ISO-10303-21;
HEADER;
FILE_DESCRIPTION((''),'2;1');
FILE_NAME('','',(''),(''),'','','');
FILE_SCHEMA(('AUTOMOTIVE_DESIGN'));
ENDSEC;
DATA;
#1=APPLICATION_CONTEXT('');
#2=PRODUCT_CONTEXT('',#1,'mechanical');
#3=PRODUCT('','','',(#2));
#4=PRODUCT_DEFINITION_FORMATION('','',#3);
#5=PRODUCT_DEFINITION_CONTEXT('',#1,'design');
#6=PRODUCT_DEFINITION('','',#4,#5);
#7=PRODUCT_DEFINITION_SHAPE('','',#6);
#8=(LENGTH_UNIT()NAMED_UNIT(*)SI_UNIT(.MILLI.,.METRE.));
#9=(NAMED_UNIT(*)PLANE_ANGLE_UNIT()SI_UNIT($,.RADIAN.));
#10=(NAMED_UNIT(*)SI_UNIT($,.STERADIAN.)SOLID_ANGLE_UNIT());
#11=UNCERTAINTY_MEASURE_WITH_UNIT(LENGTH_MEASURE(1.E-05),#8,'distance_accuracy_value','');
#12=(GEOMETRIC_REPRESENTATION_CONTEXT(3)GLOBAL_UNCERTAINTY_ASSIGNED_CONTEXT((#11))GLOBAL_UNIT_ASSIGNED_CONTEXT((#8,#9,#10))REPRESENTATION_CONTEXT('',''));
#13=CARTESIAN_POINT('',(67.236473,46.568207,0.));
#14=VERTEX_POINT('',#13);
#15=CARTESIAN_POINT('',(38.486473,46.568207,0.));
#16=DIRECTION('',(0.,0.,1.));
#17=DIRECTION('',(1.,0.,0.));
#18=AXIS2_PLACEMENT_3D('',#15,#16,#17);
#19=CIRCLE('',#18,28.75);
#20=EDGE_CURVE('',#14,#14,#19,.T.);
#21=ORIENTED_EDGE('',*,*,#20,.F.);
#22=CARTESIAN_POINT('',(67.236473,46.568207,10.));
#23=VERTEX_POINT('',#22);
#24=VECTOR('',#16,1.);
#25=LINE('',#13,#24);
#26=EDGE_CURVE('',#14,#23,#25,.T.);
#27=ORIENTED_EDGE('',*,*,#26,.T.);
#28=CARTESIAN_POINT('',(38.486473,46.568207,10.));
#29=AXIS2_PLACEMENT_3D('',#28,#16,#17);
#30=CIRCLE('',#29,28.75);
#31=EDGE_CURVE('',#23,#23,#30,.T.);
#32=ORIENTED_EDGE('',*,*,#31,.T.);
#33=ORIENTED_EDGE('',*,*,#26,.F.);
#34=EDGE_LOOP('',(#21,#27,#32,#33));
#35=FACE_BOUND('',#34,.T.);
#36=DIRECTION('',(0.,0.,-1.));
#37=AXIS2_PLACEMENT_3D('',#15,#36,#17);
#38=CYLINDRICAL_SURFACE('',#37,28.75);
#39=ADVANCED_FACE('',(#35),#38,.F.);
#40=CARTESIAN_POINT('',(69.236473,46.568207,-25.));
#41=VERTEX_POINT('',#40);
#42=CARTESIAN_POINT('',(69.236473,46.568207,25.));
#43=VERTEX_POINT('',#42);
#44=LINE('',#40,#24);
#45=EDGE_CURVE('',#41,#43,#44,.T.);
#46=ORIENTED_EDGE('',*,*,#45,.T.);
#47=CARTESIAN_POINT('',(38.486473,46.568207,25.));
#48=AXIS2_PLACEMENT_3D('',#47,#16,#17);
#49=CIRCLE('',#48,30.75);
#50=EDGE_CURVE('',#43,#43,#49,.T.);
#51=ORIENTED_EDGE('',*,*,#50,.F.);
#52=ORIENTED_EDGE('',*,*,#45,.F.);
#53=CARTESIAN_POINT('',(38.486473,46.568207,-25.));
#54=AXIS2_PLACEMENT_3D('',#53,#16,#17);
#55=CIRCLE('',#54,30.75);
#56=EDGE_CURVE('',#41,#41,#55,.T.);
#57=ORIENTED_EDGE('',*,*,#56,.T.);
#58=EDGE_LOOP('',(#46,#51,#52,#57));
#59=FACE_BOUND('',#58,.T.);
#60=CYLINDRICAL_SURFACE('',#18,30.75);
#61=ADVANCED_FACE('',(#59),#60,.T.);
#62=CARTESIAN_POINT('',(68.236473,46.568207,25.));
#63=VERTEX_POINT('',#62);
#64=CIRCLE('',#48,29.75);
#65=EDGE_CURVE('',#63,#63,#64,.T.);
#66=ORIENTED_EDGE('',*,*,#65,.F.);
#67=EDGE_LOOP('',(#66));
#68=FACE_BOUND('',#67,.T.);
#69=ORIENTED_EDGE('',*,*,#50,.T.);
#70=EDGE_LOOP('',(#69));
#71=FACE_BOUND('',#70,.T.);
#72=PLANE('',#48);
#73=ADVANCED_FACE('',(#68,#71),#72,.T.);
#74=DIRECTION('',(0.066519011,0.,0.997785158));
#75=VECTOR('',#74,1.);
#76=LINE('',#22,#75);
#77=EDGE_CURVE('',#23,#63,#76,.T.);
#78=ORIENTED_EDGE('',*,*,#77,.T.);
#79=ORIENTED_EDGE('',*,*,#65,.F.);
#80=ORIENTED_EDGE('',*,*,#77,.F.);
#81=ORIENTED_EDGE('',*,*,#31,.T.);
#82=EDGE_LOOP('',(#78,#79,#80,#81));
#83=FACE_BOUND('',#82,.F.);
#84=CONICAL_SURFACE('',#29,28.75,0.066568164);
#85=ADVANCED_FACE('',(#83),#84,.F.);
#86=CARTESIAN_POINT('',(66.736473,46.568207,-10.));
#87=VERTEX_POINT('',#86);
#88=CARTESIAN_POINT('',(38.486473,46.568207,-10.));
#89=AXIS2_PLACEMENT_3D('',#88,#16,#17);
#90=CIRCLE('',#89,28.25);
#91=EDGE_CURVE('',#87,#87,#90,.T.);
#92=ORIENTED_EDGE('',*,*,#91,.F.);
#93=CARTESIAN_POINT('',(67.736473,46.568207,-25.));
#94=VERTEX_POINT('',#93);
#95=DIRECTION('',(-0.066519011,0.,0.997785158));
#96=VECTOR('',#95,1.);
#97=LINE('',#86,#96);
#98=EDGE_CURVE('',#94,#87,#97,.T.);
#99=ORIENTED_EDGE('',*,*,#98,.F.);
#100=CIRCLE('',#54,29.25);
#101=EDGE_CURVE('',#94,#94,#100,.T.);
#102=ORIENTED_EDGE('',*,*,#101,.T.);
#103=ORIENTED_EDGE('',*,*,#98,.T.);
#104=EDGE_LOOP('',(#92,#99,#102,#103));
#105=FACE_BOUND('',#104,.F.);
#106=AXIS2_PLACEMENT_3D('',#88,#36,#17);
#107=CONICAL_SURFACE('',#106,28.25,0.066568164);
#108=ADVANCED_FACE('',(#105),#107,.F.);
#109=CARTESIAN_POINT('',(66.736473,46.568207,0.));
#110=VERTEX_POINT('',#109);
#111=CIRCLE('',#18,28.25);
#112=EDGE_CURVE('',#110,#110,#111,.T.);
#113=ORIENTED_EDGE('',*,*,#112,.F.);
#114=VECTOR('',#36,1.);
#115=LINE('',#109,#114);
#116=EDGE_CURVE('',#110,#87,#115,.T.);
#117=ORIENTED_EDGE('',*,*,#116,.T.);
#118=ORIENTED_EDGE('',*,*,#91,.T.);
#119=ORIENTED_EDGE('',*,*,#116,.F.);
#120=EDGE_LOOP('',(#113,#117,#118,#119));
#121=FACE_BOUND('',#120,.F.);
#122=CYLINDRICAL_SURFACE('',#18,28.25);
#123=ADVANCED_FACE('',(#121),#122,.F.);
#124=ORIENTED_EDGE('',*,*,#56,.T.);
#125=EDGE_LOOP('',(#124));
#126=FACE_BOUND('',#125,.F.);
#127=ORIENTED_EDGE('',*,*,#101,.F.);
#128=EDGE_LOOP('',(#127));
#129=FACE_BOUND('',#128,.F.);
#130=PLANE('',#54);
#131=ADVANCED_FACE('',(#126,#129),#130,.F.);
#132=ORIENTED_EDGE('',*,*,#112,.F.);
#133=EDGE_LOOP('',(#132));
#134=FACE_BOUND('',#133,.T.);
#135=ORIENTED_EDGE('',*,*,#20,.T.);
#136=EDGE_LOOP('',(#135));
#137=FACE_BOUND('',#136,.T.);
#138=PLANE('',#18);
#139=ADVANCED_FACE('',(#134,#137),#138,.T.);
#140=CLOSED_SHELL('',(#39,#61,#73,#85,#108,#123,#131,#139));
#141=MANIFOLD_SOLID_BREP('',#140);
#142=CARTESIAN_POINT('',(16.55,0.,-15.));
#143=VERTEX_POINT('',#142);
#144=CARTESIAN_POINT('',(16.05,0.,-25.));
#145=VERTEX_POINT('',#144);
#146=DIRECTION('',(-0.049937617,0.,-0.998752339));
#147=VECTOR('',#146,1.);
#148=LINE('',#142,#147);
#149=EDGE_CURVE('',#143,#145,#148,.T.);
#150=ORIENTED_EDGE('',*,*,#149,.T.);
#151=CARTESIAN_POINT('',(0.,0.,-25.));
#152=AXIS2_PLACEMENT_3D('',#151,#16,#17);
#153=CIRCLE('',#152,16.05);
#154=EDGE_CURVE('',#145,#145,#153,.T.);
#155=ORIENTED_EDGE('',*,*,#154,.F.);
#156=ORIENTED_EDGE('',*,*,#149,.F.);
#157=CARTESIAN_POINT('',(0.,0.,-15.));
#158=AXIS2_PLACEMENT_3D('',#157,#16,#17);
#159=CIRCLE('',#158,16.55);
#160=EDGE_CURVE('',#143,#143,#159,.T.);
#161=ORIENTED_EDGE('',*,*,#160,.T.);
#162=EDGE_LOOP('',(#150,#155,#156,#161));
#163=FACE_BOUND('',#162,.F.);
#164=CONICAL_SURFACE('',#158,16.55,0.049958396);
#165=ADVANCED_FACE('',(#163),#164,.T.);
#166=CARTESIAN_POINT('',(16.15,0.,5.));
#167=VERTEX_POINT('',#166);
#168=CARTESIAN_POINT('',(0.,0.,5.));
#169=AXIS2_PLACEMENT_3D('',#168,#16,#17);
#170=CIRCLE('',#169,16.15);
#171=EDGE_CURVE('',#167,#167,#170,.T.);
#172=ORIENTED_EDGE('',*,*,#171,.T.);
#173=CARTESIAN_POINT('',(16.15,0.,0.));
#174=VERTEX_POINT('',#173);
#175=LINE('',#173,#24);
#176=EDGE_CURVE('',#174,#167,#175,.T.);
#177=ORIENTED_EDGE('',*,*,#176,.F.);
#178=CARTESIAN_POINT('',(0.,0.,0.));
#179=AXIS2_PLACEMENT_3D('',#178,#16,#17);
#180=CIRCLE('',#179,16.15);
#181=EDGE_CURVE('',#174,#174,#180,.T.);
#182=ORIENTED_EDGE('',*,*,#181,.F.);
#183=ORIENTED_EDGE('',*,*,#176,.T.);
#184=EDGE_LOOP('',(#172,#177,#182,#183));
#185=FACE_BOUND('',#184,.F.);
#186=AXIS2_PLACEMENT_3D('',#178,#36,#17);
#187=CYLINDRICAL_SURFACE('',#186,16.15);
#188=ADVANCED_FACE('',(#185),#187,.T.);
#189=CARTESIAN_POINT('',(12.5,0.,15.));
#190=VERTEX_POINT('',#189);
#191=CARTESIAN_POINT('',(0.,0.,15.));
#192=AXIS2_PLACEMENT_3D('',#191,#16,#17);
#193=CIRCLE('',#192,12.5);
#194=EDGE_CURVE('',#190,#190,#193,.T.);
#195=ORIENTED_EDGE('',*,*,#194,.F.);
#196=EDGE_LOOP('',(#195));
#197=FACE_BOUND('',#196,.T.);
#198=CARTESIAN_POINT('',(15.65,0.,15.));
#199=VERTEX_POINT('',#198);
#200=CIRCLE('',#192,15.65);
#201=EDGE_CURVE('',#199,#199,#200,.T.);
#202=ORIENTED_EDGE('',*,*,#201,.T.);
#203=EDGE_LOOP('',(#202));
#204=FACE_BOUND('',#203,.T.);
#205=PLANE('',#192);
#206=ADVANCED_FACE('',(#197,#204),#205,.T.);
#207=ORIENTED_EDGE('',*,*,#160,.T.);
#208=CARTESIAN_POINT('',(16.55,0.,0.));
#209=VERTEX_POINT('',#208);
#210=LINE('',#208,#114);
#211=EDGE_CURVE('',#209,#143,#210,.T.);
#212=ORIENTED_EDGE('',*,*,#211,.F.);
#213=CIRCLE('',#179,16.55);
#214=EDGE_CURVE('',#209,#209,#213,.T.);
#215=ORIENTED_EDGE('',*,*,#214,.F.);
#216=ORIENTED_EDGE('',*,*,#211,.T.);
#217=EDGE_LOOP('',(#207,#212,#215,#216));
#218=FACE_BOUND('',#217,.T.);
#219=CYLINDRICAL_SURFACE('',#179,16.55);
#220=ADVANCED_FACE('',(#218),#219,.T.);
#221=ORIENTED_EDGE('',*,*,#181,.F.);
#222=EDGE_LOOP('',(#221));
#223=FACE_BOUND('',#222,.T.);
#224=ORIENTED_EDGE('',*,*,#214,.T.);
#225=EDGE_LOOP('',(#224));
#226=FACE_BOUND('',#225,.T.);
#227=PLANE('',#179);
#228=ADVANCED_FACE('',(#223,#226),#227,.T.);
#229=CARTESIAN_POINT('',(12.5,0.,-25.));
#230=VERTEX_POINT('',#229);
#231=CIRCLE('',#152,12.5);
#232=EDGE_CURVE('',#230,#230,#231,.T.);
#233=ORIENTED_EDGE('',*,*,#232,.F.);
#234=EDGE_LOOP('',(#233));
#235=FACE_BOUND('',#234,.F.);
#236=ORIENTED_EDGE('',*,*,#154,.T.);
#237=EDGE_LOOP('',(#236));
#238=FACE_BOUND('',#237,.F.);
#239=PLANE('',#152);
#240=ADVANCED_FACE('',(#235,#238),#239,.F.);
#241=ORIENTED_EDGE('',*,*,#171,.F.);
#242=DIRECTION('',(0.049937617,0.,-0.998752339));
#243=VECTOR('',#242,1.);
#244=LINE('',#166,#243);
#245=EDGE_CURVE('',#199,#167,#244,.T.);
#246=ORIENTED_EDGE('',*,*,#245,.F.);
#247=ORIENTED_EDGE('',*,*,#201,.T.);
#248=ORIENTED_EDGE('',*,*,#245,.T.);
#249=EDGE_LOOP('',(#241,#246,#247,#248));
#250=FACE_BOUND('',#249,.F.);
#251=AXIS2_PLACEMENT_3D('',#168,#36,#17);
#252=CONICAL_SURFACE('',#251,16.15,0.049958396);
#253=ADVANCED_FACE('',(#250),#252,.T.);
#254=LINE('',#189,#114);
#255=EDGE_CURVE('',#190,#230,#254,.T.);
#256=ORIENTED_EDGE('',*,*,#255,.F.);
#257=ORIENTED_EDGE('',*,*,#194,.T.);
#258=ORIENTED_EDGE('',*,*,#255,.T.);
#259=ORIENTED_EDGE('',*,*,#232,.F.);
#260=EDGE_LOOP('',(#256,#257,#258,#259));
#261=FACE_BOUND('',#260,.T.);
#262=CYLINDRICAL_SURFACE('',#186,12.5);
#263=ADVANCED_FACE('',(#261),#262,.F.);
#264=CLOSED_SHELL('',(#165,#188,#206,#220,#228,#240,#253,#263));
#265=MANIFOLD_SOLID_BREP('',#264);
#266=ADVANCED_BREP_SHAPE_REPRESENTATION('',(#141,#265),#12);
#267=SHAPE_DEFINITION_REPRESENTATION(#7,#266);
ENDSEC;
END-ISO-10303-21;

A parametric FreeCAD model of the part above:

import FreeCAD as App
import Part
import Sketcher


def edges_at(feature, points):
    """Names of the edges that pass closest to the given points."""
    edges = feature.Shape.Edges
    near = lambda p: min(range(len(edges)), key=lambda i: edges[i].distToShape(Part.Vertex(*p))[0])
    return sorted({f"Edge{near(p) + 1}" for p in points})

doc = App.newDocument("Part")
body = doc.addObject("PartDesign::Body", "Body")

# Sketch on XY plane
sketch1 = body.newObject("Sketcher::SketchObject", "Sketch")
sketch1.AttachmentSupport = (doc.getObject("XY_Plane"), [""])
sketch1.MapMode = "FlatFace"
sketch1.addGeometry([
    Part.Circle(App.Vector(0, 0, 0), App.Vector(0, 0, 1), 16.15),
    Part.Circle(App.Vector(0, 0, 0), App.Vector(0, 0, 1), 12.5),
], False)
sketch1.addConstraint([
    Sketcher.Constraint("Coincident", 0, 3, -1, 1),
    Sketcher.Constraint("Coincident", 1, 3, -1, 1),
    Sketcher.Constraint("Diameter", 1, 25.0),
    Sketcher.Constraint("Diameter", 0, 32.3),
])
pad1 = body.newObject("PartDesign::Pad", "Pad")
pad1.Profile = sketch1
pad1.Length = 15

# Sketch on XY plane
sketch2 = body.newObject("Sketcher::SketchObject", "Sketch001")
sketch2.AttachmentSupport = (doc.getObject("XY_Plane"), [""])
sketch2.MapMode = "FlatFace"
sketch2.addGeometry([
    Part.Circle(App.Vector(0, 0, 0), App.Vector(0, 0, 1), 16.55),
    Part.Circle(App.Vector(0, 0, 0), App.Vector(0, 0, 1), 12.5),
], False)
sketch2.addConstraint([
    Sketcher.Constraint("Coincident", 0, 3, -1, 1),
    Sketcher.Constraint("Coincident", 1, 3, -1, 1),
    Sketcher.Constraint("Diameter", 1, 25.0),
    Sketcher.Constraint("Diameter", 0, 33.1),
])
pad2 = body.newObject("PartDesign::Pad", "Pad001")
pad2.Profile = sketch2
pad2.Length = 25
pad2.Reversed = True
doc.recompute()

chamfer = body.newObject("PartDesign::Chamfer", "Chamfer")
chamfer.Base = (pad2, edges_at(pad2, [(-16.15, 0, 15)]))
chamfer.ChamferType = "Two distances"
chamfer.Size = 0.5
chamfer.Size2 = 10
chamfer.FlipDirection = True
doc.recompute()

chamfer2 = body.newObject("PartDesign::Chamfer", "Chamfer001")
chamfer2.Base = (chamfer, edges_at(chamfer, [(-16.55, 0, -25)]))
chamfer2.ChamferType = "Two distances"
chamfer2.Size = 10
chamfer2.Size2 = 0.5
body2 = doc.addObject("PartDesign::Body", "Body001")

# Sketch on XY plane
sketch3 = body2.newObject("Sketcher::SketchObject", "Sketch002")
sketch3.AttachmentSupport = (doc.getObject("XY_Plane001"), [""])
sketch3.MapMode = "FlatFace"
sketch3.addGeometry([
    Part.Circle(App.Vector(38.486473, 46.568207, 0), App.Vector(0, 0, 1), 30.75),
    Part.Circle(App.Vector(38.486473, 46.568207, 0), App.Vector(0, 0, 1), 28.25),
], False)
sketch3.addConstraint([
    Sketcher.Constraint("Coincident", 1, 3, 0, 3),
    Sketcher.Constraint("Diameter", 0, 61.5),
    Sketcher.Constraint("Diameter", 1, 56.5),
    Sketcher.Constraint("DistanceX", -1, 1, 0, 3, 38.486473),
    Sketcher.Constraint("DistanceY", -1, 1, 0, 3, 46.568207),
])
pad3 = body2.newObject("PartDesign::Pad", "Pad002")
pad3.Profile = sketch3
pad3.Length = 25
pad3.Reversed = True

# Sketch on XY plane
sketch4 = body2.newObject("Sketcher::SketchObject", "Sketch003")
sketch4.AttachmentSupport = (doc.getObject("XY_Plane001"), [""])
sketch4.MapMode = "FlatFace"
sketch4.addGeometry([
    Part.Circle(App.Vector(38.486473, 46.568207, 0), App.Vector(0, 0, 1), 30.75),
    Part.Circle(App.Vector(38.486473, 46.568207, 0), App.Vector(0, 0, 1), 28.75),
], False)
sketch4.addConstraint([
    Sketcher.Constraint("Coincident", 1, 3, 0, 3),
    Sketcher.Constraint("Diameter", 0, 61.5),
    Sketcher.Constraint("Diameter", 1, 57.5),
    Sketcher.Constraint("DistanceX", -1, 1, 0, 3, 38.486473),
    Sketcher.Constraint("DistanceY", -1, 1, 0, 3, 46.568207),
])
pad4 = body2.newObject("PartDesign::Pad", "Pad003")
pad4.Profile = sketch4
pad4.Length = 25
doc.recompute()

chamfer3 = body2.newObject("PartDesign::Chamfer", "Chamfer002")
chamfer3.Base = (pad4, edges_at(pad4, [(9.736, 46.568, 25)]))
chamfer3.ChamferType = "Two distances"
chamfer3.Size = 15
chamfer3.Size2 = 1
chamfer3.FlipDirection = True
doc.recompute()

chamfer4 = body2.newObject("PartDesign::Chamfer", "Chamfer003")
chamfer4.Base = (chamfer3, edges_at(chamfer3, [(10.236, 46.568, -25)]))
chamfer4.ChamferType = "Two distances"
chamfer4.Size = 1
chamfer4.Size2 = 15

doc.recompute()
